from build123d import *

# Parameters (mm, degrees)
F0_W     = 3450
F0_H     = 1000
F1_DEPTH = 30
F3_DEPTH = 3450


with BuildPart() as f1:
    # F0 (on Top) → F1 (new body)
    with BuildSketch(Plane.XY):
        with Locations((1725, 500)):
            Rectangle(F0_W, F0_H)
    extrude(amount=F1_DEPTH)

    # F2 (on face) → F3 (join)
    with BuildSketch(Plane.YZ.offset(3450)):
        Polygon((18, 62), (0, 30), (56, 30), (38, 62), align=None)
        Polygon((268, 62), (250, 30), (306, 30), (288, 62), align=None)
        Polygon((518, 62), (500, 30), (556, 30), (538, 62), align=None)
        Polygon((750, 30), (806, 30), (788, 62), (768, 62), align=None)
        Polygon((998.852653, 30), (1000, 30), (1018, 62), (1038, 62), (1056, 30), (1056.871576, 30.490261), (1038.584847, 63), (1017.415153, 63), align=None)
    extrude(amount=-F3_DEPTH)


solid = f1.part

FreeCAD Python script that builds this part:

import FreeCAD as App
import Part
import Sketcher
Q = App.Units.Quantity

doc = App.newDocument("Part")
body = doc.addObject("PartDesign::Body", "Body")

# Sketch on XY plane
sketch1 = body.newObject("Sketcher::SketchObject", "Sketch")
sketch1.AttachmentSupport = (doc.getObject("XY_Plane"), [""])
sketch1.MapMode = "FlatFace"
sketch1.addGeometry([
    Part.LineSegment(App.Vector(0, 1000, 0), App.Vector(0, 0, 0)),
    Part.LineSegment(App.Vector(0, 0, 0), App.Vector(3450, 0, 0)),
    Part.LineSegment(App.Vector(3450, 0, 0), App.Vector(3450, 1000, 0)),
    Part.LineSegment(App.Vector(3450, 1000, 0), App.Vector(0, 1000, 0)),
], False)
sketch1.addConstraint([
    Sketcher.Constraint("Coincident", 0, 2, 1, 1),
    Sketcher.Constraint("Coincident", 1, 2, 2, 1),
    Sketcher.Constraint("Coincident", 2, 2, 3, 1),
    Sketcher.Constraint("Coincident", 3, 2, 0, 1),
    Sketcher.Constraint("Vertical", 0),
    Sketcher.Constraint("Horizontal", 1),
    Sketcher.Constraint("Vertical", 2),
    Sketcher.Constraint("Horizontal", 3),
    Sketcher.Constraint("Coincident", 0, 2, -1, 1),
    Sketcher.Constraint("DistanceX", 1, 1, 1, 2, Q("3450 mm")),
    Sketcher.Constraint("DistanceY", 0, 2, 0, 1, Q("1000 mm")),
])
pad1 = body.newObject("PartDesign::Pad", "Pad")
pad1.Profile = sketch1
pad1.Length = 30

# Sketch on YZ plane
sketch2 = body.newObject("Sketcher::SketchObject", "Sketch001")
sketch2.AttachmentSupport = (doc.getObject("YZ_Plane"), [""])
sketch2.MapMode = "FlatFace"
sketch2.AttachmentOffset = App.Placement(App.Vector(0, 0, 3450), App.Rotation())
sketch2.addGeometry([
    Part.LineSegment(App.Vector(18, 62, 0), App.Vector(0, 30, 0)),  # 0
    Part.LineSegment(App.Vector(0, 30, 0), App.Vector(56, 30, 0)),  # 1
    Part.LineSegment(App.Vector(56, 30, 0), App.Vector(38, 62, 0)),  # 2
    Part.LineSegment(App.Vector(38, 62, 0), App.Vector(18, 62, 0)),  # 3
    Part.LineSegment(App.Vector(268, 62, 0), App.Vector(250, 30, 0)),  # 4
    Part.LineSegment(App.Vector(250, 30, 0), App.Vector(306, 30, 0)),  # 5
    Part.LineSegment(App.Vector(306, 30, 0), App.Vector(288, 62, 0)),  # 6
    Part.LineSegment(App.Vector(288, 62, 0), App.Vector(268, 62, 0)),  # 7
    Part.LineSegment(App.Vector(518, 62, 0), App.Vector(500, 30, 0)),  # 8
    Part.LineSegment(App.Vector(500, 30, 0), App.Vector(556, 30, 0)),  # 9
    Part.LineSegment(App.Vector(556, 30, 0), App.Vector(538, 62, 0)),  # 10
    Part.LineSegment(App.Vector(538, 62, 0), App.Vector(518, 62, 0)),  # 11
    Part.LineSegment(App.Vector(750, 30, 0), App.Vector(806, 30, 0)),  # 12
    Part.LineSegment(App.Vector(806, 30, 0), App.Vector(788, 62, 0)),  # 13
    Part.LineSegment(App.Vector(788, 62, 0), App.Vector(768, 62, 0)),  # 14
    Part.LineSegment(App.Vector(768, 62, 0), App.Vector(750, 30, 0)),  # 15
    Part.LineSegment(App.Vector(998.9, 30, 0), App.Vector(1000, 30, 0)),  # 16
    Part.LineSegment(App.Vector(1000, 30, 0), App.Vector(1018, 62, 0)),  # 17
    Part.LineSegment(App.Vector(1018, 62, 0), App.Vector(1038, 62, 0)),  # 18
    Part.LineSegment(App.Vector(1038, 62, 0), App.Vector(1056, 30, 0)),  # 19
    Part.LineSegment(App.Vector(1056, 30, 0), App.Vector(1056.9, 30.5, 0)),  # 20
    Part.LineSegment(App.Vector(1056.9, 30.5, 0), App.Vector(1038.6, 63, 0)),  # 21
    Part.LineSegment(App.Vector(1038.6, 63, 0), App.Vector(1017.4, 63, 0)),  # 22
    Part.LineSegment(App.Vector(1017.4, 63, 0), App.Vector(998.9, 30, 0)),  # 23
], False)
sketch2.addConstraint([
    Sketcher.Constraint("Coincident", 0, 2, 1, 1),
    Sketcher.Constraint("Coincident", 1, 2, 2, 1),
    Sketcher.Constraint("Coincident", 2, 2, 3, 1),
    Sketcher.Constraint("Coincident", 3, 2, 0, 1),
    Sketcher.Constraint("Coincident", 4, 2, 5, 1),
    Sketcher.Constraint("Coincident", 5, 2, 6, 1),
    Sketcher.Constraint("Coincident", 6, 2, 7, 1),
    Sketcher.Constraint("Coincident", 7, 2, 4, 1),
    Sketcher.Constraint("Coincident", 8, 2, 9, 1),
    Sketcher.Constraint("Coincident", 9, 2, 10, 1),
    Sketcher.Constraint("Coincident", 10, 2, 11, 1),
    Sketcher.Constraint("Coincident", 11, 2, 8, 1),
    Sketcher.Constraint("Coincident", 12, 2, 13, 1),
    Sketcher.Constraint("Coincident", 13, 2, 14, 1),
    Sketcher.Constraint("Coincident", 14, 2, 15, 1),
    Sketcher.Constraint("Coincident", 15, 2, 12, 1),
    Sketcher.Constraint("Coincident", 16, 2, 17, 1),
    Sketcher.Constraint("Coincident", 17, 2, 18, 1),
    Sketcher.Constraint("Coincident", 18, 2, 19, 1),
    Sketcher.Constraint("Coincident", 19, 2, 20, 1),
    Sketcher.Constraint("Coincident", 20, 2, 21, 1),
    Sketcher.Constraint("Coincident", 21, 2, 22, 1),
    Sketcher.Constraint("Coincident", 22, 2, 23, 1),
    Sketcher.Constraint("Coincident", 23, 2, 16, 1),
    Sketcher.Constraint("Horizontal", 1),
    Sketcher.Constraint("Horizontal", 3),
    Sketcher.Constraint("Horizontal", 5),
    Sketcher.Constraint("Horizontal", 7),
    Sketcher.Constraint("Horizontal", 9),
    Sketcher.Constraint("Horizontal", 11),
    Sketcher.Constraint("Horizontal", 12),
    Sketcher.Constraint("Horizontal", 14),
    Sketcher.Constraint("Horizontal", 16),
    Sketcher.Constraint("Horizontal", 18),
    Sketcher.Constraint("Horizontal", 22),
    Sketcher.Constraint("PointOnObject", 0, 2, -2),
    Sketcher.Constraint("Parallel", 0, 4),
    Sketcher.Constraint("Parallel", 2, 6),
    Sketcher.Constraint("Parallel", 4, 8),
    Sketcher.Constraint("Parallel", 6, 10),
    Sketcher.Constraint("Parallel", 10, 13),
    Sketcher.Constraint("Parallel", 8, 15),
    Sketcher.Constraint("Parallel", 15, 17),
    Sketcher.Constraint("Parallel", 13, 19),
    Sketcher.Constraint("Perpendicular", 19, 20),
    Sketcher.Constraint("Perpendicular", 20, 21),
    Sketcher.Constraint("Parallel", 17, 23),
    Sketcher.Constraint("Horizontal", 1, 2, 4, 2),
    Sketcher.Constraint("Horizontal", 3, 2, 6, 2),
    Sketcher.Constraint("Horizontal", 5, 2, 8, 2),
    Sketcher.Constraint("Horizontal", 7, 2, 10, 2),
    Sketcher.Constraint("Horizontal", 9, 2, 12, 2),
    Sketcher.Constraint("Horizontal", 11, 2, 13, 2),
    Sketcher.Constraint("Horizontal", 15, 2, 16, 2),
    Sketcher.Constraint("Horizontal", 14, 2, 17, 2),
    Sketcher.Constraint("Horizontal", 16, 2, 19, 2),
    Sketcher.Constraint("Equal", 1, 5),
    Sketcher.Constraint("Equal", 5, 9),
    Sketcher.Constraint("Equal", 9, 12),
    Sketcher.Constraint("Equal", 14, 18),
    Sketcher.Constraint("Equal", 0, 2),
    Sketcher.Constraint("DistanceX", 1, 1, 1, 2, Q("56 mm")),
    Sketcher.Constraint("DistanceX", 3, 2, 3, 1, Q("20 mm")),
    Sketcher.Constraint("Distance", 20, Q("1 mm")),
    Sketcher.Constraint("DistanceY", -1, 1, 0, 2, Q("30 mm")),
    Sketcher.Constraint("DistanceY", -1, 1, 2, 2, Q("62 mm")),
    Sketcher.Constraint("DistanceX", -1, 1, 4, 2, Q("250 mm")),
    Sketcher.Constraint("DistanceX", -1, 1, 8, 2, Q("500 mm")),
    Sketcher.Constraint("DistanceX", -1, 1, 12, 2, Q("806 mm")),
    Sketcher.Constraint("DistanceX", -1, 1, 16, 2, Q("1000 mm")),
    Sketcher.Constraint("DistanceY", -1, 1, 21, 2, Q("63 mm")),
    Sketcher.Constraint("DistanceX", 16, 1, 16, 2, Q("1.147347 mm")),
])
pad2 = body.newObject("PartDesign::Pad", "Pad001")
pad2.Profile = sketch2
pad2.Length = 3450
pad2.Reversed = True

doc.recompute()
